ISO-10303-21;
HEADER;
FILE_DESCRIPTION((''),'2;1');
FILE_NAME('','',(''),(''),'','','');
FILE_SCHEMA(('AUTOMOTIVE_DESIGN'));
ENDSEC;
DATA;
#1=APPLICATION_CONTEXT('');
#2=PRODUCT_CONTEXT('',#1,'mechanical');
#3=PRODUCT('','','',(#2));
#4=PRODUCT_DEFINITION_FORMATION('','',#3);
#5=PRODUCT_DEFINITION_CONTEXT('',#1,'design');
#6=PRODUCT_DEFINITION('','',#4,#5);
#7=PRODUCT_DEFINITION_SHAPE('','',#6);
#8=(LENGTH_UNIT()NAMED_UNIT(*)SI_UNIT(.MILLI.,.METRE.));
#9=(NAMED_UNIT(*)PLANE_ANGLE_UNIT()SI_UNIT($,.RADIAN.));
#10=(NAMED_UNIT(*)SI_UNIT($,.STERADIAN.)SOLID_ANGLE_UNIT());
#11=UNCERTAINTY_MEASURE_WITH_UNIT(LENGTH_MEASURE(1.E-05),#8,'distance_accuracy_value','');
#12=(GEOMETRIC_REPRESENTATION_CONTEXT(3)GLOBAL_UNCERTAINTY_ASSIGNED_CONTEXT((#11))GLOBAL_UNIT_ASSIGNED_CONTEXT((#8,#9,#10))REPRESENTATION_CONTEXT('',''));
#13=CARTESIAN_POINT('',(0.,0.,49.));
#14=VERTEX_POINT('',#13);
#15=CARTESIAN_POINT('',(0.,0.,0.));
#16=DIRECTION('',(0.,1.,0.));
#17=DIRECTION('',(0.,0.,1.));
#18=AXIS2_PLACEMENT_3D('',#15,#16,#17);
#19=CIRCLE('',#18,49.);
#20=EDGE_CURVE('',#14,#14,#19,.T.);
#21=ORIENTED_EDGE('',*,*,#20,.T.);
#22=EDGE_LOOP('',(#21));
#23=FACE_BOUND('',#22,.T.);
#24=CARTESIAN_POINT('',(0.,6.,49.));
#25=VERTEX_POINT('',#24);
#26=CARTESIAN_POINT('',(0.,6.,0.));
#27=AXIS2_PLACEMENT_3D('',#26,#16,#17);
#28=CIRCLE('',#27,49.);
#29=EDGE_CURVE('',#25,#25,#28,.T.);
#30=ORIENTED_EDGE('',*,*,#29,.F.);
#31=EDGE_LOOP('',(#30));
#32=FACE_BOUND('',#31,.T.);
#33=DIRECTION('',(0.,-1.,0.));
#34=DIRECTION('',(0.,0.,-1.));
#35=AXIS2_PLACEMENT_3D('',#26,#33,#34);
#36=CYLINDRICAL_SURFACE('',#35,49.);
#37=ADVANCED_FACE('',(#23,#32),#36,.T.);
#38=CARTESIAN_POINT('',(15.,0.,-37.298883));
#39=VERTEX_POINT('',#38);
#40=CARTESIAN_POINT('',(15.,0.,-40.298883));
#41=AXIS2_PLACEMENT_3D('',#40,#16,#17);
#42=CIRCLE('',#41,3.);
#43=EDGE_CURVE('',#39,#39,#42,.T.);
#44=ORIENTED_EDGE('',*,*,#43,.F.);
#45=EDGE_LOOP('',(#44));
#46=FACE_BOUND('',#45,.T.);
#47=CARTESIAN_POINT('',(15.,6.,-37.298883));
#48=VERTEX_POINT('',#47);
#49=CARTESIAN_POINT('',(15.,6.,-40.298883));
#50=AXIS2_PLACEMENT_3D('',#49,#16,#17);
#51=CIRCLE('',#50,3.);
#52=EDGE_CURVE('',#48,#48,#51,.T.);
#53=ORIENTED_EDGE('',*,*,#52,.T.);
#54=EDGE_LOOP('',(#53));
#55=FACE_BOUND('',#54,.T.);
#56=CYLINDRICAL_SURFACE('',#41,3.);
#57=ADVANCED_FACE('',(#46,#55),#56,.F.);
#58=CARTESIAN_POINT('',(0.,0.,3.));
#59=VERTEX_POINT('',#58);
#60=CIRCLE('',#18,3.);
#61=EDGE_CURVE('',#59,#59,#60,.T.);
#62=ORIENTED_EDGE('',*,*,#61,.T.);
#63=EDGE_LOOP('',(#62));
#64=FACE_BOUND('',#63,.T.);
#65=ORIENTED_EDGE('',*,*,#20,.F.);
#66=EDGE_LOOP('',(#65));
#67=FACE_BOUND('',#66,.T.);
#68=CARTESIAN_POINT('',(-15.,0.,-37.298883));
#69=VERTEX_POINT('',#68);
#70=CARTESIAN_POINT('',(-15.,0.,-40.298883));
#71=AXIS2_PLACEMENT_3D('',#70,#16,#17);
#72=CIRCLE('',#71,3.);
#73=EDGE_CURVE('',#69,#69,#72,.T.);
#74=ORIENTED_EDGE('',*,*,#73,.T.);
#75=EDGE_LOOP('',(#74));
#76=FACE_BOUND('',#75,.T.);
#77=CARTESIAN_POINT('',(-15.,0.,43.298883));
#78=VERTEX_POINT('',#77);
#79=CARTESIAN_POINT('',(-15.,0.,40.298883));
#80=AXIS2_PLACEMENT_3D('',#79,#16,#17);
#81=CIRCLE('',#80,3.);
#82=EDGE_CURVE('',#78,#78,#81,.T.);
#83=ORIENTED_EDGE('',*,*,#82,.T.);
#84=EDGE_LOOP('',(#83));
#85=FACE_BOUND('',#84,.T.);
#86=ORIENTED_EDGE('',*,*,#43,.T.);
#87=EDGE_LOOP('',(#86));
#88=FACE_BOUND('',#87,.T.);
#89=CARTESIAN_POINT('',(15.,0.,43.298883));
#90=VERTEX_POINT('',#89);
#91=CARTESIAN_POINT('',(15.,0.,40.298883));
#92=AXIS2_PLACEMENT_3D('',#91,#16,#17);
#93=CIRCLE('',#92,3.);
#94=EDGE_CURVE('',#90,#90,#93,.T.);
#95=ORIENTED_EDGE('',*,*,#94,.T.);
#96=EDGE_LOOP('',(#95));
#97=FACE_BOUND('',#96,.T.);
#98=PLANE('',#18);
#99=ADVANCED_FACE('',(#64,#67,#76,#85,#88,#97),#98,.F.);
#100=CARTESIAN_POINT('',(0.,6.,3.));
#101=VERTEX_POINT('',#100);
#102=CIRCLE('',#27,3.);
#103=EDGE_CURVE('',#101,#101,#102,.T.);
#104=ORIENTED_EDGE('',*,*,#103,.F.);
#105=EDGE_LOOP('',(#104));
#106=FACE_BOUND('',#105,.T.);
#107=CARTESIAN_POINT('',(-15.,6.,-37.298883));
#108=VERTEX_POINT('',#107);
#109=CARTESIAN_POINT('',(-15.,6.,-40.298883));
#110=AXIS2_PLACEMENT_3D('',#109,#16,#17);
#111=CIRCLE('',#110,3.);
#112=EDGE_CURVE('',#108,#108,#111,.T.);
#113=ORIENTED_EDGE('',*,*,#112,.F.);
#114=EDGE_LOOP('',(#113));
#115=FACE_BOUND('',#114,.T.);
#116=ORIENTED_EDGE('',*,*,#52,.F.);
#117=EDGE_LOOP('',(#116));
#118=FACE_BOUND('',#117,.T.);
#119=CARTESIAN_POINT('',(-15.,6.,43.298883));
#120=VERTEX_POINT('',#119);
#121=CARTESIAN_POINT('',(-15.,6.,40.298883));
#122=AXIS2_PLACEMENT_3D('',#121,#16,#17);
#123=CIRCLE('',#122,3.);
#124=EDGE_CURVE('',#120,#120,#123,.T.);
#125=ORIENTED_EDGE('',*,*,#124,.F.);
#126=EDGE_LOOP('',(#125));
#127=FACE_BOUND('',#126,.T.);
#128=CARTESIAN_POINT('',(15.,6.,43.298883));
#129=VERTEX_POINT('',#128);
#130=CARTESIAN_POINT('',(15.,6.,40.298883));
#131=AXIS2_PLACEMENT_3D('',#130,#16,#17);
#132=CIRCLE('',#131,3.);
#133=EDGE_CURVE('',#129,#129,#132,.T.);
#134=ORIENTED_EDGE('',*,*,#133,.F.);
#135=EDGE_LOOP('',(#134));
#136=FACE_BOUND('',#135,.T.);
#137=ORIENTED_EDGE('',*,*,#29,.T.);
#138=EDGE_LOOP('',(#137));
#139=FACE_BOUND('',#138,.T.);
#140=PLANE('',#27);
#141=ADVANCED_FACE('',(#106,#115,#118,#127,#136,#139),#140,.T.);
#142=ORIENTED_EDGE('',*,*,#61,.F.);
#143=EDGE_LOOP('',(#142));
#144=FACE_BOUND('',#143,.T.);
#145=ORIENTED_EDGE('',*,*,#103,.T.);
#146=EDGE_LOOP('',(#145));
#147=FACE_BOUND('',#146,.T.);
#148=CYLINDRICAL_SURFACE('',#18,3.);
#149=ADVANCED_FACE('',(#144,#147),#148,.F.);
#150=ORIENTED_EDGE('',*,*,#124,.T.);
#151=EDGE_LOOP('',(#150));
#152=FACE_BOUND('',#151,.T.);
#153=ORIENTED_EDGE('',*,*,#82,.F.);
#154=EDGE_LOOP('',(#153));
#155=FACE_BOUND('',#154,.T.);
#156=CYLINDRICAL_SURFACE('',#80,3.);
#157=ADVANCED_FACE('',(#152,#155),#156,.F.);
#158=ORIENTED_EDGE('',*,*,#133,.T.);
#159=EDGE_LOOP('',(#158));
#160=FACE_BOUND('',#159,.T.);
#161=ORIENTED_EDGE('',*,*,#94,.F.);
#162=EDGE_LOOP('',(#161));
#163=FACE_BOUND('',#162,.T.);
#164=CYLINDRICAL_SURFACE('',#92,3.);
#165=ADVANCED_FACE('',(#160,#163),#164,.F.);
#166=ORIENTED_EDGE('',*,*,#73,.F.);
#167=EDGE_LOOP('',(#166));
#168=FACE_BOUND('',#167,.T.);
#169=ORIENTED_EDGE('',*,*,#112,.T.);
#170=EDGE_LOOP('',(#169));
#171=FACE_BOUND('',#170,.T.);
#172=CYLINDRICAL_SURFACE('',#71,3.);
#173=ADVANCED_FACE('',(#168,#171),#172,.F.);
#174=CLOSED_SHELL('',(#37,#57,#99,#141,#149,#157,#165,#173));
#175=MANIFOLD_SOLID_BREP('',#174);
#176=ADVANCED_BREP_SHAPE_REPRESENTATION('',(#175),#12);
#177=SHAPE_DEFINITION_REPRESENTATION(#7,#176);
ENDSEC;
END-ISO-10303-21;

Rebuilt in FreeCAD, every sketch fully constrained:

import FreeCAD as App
import Part
import Sketcher

V = App.Vector

doc = App.newDocument("Part")
body = doc.addObject("PartDesign::Body", "Body")

# Sketch on XZ plane
sketch1 = body.newObject("Sketcher::SketchObject", "Sketch")
sketch1.AttachmentSupport = (doc.getObject("XZ_Plane"), [""])
sketch1.MapMode = "FlatFace"
sketch1.addGeometry(Part.Circle(V(0, 0, 0), V(0, 0, 1), 49), False)
sketch1.addConstraint(Sketcher.Constraint("Coincident", 0, 3, -1, 1))
sketch1.addConstraint(Sketcher.Constraint("Diameter", 0, 98.0))
pad1 = body.newObject("PartDesign::Pad", "Pad")
pad1.Profile = sketch1
pad1.Length = 6
pad1.Reversed = True

# Sketch on XZ plane
sketch2 = body.newObject("Sketcher::SketchObject", "Sketch001")
sketch2.AttachmentSupport = (doc.getObject("XZ_Plane"), [""])
sketch2.MapMode = "FlatFace"
sketch2.AttachmentOffset = App.Placement(V(0, 0, -6), App.Rotation())
sketch2.addGeometry(Part.Circle(V(-15, -40.298883, 0), V(0, 0, 1), 3), False)
sketch2.addGeometry(Part.Circle(V(15, -40.298883, 0), V(0, 0, 1), 3), False)
sketch2.addGeometry(Part.Circle(V(0, 0, 0), V(0, 0, 1), 3), False)
sketch2.addGeometry(Part.Circle(V(15, 40.298883, 0), V(0, 0, 1), 3), False)
sketch2.addGeometry(Part.Circle(V(-15, 40.298883, 0), V(0, 0, 1), 3), False)
sketch2.addConstraint(Sketcher.Constraint("Coincident", 2, 3, -1, 1))
sketch2.addConstraint(Sketcher.Constraint("Equal", 0, 1))
sketch2.addConstraint(Sketcher.Constraint("Equal", 1, 2))
sketch2.addConstraint(Sketcher.Constraint("Equal", 2, 3))
sketch2.addConstraint(Sketcher.Constraint("Equal", 3, 4))
sketch2.addConstraint(Sketcher.Constraint("Symmetric", 0, 3, 3, 3, -1, 1))
sketch2.addConstraint(Sketcher.Constraint("Symmetric", 1, 3, 4, 3, -1, 1))
sketch2.addConstraint(Sketcher.Constraint("Symmetric", 0, 3, 1, 3, -2))
sketch2.addConstraint(Sketcher.Constraint("Diameter", 0, 6.0))
sketch2.addConstraint(Sketcher.Constraint("DistanceX", 0, 3, -1, 1, 15.0))
sketch2.addConstraint(Sketcher.Constraint("DistanceY", 0, 3, -1, 1, 40.298883))
pocket1 = body.newObject("PartDesign::Pocket", "Pocket")
pocket1.Profile = sketch2
pocket1.Length = 6
pocket1.Reversed = True

doc.recompute()
